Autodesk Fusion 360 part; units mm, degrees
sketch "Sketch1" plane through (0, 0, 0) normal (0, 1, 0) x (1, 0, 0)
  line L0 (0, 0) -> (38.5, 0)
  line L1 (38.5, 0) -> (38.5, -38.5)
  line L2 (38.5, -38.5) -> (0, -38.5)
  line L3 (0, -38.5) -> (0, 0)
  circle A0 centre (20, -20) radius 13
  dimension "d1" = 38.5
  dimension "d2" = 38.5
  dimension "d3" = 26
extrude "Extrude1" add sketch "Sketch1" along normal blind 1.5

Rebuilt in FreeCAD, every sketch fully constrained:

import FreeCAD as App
import Part
import Sketcher
from FreeCAD import Vector

doc = App.newDocument("Part")
body = doc.addObject("PartDesign::Body", "Body")

sketch1 = doc.addObject("Sketcher::SketchObject", "Sketch")
body.addObject(sketch1)
sketch1.AttachmentSupport = (doc.XZ_Plane, [""])
sketch1.MapMode = "FlatFace"
sketch1.addGeometry(Part.LineSegment(Vector(38.5, 0, 0), Vector(0, 0, 0)), False)
sketch1.addGeometry(Part.LineSegment(Vector(0, 0, 0), Vector(0, 38.5, 0)), False)
sketch1.addGeometry(Part.LineSegment(Vector(0, 38.5, 0), Vector(38.5, 38.5, 0)), False)
sketch1.addGeometry(Part.LineSegment(Vector(38.5, 38.5, 0), Vector(38.5, 0, 0)), False)
sketch1.addGeometry(Part.Circle(Vector(20, 20, 0), Vector(0, 0, 1), 13), False)
sketch1.addConstraint(Sketcher.Constraint("Coincident", 0, 2, 1, 1))
sketch1.addConstraint(Sketcher.Constraint("Coincident", 1, 2, 2, 1))
sketch1.addConstraint(Sketcher.Constraint("Coincident", 2, 2, 3, 1))
sketch1.addConstraint(Sketcher.Constraint("Coincident", 3, 2, 0, 1))
sketch1.addConstraint(Sketcher.Constraint("Horizontal", 0))
sketch1.addConstraint(Sketcher.Constraint("Vertical", 1))
sketch1.addConstraint(Sketcher.Constraint("Horizontal", 2))
sketch1.addConstraint(Sketcher.Constraint("Vertical", 3))
sketch1.addConstraint(Sketcher.Constraint("Coincident", 0, 2, -1, 1))
sketch1.addConstraint(Sketcher.Constraint("Equal", 2, 1))
sketch1.addConstraint(Sketcher.Constraint("Diameter", 4, 26.0))
sketch1.addConstraint(Sketcher.Constraint("DistanceX", 0, 2, 0, 1, 38.5))
sketch1.addConstraint(Sketcher.Constraint("DistanceX", -1, 1, 4, 3, 20.0))
sketch1.addConstraint(Sketcher.Constraint("DistanceY", -1, 1, 4, 3, 20.0))
pad1 = doc.addObject("PartDesign::Pad", "Pad")
body.addObject(pad1)
pad1.Profile = sketch1
pad1.Length = 1.5
pad1.Reversed = True

doc.recompute()
